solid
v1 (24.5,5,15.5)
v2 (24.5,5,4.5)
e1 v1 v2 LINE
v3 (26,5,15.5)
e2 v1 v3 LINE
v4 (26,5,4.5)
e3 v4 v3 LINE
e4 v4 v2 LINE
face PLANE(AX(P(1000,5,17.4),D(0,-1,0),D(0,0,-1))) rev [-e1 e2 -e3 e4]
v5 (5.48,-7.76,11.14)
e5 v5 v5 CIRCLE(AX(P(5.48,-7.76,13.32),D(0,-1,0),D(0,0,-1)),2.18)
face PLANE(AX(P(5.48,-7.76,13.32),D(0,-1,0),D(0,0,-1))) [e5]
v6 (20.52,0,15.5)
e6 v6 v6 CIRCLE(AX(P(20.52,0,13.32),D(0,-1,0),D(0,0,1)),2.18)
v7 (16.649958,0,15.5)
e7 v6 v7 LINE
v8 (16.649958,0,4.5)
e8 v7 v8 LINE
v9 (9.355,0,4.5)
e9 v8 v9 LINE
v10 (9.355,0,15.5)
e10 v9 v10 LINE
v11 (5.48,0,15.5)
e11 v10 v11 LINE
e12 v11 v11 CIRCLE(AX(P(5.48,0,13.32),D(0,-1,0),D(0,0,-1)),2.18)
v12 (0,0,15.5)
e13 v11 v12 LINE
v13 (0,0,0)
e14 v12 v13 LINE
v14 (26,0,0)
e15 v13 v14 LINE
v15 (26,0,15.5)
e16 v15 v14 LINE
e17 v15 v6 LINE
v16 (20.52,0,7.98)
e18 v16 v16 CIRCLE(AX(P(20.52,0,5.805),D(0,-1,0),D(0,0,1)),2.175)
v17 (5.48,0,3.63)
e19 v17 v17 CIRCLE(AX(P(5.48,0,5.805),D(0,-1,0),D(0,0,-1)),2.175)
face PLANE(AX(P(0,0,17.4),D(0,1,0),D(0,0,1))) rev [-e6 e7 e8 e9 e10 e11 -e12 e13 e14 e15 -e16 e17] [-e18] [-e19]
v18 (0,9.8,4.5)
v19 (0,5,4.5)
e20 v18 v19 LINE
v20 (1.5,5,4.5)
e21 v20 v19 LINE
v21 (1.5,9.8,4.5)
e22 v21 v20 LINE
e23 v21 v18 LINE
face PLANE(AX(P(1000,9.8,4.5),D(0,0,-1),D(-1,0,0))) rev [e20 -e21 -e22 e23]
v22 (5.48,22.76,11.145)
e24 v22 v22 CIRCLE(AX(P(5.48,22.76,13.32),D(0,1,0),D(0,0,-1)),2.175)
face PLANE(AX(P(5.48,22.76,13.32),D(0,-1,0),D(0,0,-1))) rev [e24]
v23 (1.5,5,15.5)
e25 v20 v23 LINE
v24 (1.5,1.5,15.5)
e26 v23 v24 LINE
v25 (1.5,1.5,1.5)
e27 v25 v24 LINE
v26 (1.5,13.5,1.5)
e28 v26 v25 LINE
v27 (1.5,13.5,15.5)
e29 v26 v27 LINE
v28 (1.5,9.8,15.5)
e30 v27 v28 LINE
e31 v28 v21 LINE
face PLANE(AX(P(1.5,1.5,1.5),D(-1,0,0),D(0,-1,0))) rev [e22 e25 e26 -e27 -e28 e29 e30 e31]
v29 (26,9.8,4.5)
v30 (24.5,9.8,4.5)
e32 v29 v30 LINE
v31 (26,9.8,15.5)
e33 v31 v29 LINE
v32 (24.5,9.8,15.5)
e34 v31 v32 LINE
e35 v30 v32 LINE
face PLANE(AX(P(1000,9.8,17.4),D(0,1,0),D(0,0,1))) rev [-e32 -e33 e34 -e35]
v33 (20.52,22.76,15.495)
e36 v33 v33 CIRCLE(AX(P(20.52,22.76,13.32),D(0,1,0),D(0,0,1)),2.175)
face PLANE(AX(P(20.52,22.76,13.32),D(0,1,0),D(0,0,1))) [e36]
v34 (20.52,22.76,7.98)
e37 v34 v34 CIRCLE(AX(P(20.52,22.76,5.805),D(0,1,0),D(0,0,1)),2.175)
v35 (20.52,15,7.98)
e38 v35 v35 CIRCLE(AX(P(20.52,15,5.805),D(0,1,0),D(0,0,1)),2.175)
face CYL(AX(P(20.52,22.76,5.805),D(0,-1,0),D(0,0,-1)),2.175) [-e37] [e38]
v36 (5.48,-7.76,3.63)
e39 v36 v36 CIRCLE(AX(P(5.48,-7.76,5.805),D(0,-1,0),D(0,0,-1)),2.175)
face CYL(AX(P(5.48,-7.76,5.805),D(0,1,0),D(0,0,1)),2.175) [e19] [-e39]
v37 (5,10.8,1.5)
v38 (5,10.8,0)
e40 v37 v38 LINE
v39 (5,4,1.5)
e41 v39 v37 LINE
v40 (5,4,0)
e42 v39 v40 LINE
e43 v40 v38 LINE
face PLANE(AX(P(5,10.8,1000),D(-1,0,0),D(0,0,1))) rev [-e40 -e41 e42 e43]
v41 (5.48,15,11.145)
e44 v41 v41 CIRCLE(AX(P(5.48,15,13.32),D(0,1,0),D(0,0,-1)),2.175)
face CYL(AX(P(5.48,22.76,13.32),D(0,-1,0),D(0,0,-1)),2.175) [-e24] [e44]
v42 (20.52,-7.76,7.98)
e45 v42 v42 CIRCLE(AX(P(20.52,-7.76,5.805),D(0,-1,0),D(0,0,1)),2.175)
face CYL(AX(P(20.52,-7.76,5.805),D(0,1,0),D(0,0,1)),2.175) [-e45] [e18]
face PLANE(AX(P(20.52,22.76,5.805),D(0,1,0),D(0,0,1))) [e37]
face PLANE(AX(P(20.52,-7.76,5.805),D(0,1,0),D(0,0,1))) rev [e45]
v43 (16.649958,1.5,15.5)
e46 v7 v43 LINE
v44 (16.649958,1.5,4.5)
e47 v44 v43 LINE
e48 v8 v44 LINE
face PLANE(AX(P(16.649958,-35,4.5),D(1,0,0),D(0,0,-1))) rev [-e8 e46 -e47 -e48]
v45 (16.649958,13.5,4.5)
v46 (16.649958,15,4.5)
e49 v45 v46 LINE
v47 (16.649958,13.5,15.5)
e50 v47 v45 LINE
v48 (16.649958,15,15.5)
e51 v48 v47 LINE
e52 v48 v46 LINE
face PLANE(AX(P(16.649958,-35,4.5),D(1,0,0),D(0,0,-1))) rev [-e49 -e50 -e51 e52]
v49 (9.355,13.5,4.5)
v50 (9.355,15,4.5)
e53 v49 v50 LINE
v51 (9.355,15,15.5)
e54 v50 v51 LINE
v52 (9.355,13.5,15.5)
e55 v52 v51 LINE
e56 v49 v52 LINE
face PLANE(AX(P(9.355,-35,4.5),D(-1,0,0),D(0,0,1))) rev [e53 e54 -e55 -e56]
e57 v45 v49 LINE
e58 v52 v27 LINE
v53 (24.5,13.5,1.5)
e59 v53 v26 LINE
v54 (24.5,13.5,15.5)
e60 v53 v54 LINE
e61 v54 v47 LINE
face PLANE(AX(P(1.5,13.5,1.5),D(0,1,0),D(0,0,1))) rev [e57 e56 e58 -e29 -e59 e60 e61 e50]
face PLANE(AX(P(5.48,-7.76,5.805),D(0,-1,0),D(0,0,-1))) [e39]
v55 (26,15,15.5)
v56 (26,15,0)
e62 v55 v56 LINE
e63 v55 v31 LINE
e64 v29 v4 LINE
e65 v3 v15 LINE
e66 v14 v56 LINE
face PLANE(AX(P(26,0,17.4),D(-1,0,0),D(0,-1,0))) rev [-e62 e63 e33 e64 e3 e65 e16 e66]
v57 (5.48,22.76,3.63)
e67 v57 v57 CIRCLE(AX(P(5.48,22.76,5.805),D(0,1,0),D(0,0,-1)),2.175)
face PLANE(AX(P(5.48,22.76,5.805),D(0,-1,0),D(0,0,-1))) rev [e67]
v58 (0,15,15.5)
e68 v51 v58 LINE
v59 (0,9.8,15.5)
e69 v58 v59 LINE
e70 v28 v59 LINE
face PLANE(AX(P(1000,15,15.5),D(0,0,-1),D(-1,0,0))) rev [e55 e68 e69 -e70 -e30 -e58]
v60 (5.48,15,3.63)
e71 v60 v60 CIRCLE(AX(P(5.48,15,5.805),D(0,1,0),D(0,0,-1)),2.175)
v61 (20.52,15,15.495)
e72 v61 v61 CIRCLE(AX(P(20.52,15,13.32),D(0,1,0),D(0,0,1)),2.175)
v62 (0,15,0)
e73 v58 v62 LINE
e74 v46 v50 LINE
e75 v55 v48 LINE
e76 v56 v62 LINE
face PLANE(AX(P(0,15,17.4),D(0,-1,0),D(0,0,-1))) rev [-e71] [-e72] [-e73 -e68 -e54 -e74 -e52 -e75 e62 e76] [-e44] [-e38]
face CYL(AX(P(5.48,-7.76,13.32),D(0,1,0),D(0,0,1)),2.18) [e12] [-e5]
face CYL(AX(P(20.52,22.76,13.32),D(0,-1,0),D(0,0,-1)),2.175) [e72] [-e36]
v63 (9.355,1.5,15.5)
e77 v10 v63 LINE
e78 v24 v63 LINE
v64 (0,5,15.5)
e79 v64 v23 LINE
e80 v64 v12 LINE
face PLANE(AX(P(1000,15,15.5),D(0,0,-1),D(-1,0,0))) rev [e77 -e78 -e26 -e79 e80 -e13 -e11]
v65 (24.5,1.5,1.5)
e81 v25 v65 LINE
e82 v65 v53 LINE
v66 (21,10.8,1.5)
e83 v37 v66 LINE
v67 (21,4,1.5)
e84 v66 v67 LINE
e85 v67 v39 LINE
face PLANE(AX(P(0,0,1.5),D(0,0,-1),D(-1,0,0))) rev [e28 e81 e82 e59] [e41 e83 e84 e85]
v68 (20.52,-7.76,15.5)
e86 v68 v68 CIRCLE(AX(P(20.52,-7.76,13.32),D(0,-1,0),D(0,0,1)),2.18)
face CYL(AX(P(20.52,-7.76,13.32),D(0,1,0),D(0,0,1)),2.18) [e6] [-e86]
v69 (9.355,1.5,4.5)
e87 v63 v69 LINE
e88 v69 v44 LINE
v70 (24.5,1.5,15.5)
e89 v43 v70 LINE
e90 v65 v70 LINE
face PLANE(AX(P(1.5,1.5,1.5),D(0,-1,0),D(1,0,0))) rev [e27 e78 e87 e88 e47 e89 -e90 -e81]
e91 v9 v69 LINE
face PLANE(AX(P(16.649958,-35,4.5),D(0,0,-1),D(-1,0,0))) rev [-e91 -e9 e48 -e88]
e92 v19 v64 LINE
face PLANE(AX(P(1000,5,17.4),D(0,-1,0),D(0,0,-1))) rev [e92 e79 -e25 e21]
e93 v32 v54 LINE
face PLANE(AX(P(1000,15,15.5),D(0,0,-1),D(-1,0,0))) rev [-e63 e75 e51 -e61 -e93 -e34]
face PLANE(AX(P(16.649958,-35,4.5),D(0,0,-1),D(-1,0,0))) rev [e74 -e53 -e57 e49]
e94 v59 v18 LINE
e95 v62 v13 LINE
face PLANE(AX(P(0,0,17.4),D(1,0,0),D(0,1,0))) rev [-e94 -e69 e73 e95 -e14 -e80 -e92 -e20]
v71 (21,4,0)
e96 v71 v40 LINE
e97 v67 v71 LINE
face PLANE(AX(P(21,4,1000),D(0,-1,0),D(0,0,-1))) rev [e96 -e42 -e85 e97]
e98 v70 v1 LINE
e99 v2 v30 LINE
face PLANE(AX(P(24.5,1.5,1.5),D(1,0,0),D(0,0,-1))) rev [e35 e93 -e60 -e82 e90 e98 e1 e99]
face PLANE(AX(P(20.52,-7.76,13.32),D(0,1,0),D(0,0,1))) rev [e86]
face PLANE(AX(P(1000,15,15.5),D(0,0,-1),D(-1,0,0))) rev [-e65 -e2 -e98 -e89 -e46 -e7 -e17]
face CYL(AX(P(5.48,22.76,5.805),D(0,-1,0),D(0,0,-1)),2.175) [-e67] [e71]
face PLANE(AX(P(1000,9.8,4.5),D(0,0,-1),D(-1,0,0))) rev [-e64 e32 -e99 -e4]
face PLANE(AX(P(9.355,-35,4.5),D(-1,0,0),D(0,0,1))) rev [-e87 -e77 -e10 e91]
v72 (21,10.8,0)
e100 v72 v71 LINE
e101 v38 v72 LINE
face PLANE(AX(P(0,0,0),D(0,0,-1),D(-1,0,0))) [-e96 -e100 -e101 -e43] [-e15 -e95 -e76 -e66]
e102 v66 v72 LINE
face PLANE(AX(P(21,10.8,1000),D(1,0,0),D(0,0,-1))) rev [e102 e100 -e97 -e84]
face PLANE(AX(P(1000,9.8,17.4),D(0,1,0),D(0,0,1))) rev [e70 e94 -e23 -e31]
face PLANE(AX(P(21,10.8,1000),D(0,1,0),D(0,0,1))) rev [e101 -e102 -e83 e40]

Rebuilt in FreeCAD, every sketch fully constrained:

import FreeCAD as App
import Part
import Sketcher

V = App.Vector


def add_polygon(sketch, points):
    """Adds a closed chain of lines whose ends are joined by coincident constraints."""
    first, n = sketch.GeometryCount, len(points)
    for a, b in zip(points, points[1:] + points[:1]):
        sketch.addGeometry(Part.LineSegment(App.Vector(*a, 0), App.Vector(*b, 0)), False)
    for i in range(n):
        sketch.addConstraint(Sketcher.Constraint("Coincident", first + i, 2, first + (i + 1) % n, 1))

doc = App.newDocument("Part")
body = doc.addObject("PartDesign::Body", "Body")

# Sketch on XY plane
sketch1 = body.newObject("Sketcher::SketchObject", "Sketch")
sketch1.AttachmentSupport = (doc.getObject("XY_Plane"), [""])
sketch1.MapMode = "FlatFace"
add_polygon(sketch1, [(0, 15), (0, 0), (26, 0), (26, 15)])  # lines 0-3
sketch1.addConstraint([
    Sketcher.Constraint("Vertical", 0),
    Sketcher.Constraint("Horizontal", 1),
    Sketcher.Constraint("Vertical", 2),
    Sketcher.Constraint("Horizontal", 3),
    Sketcher.Constraint("Coincident", 0, 2, -1, 1),
    Sketcher.Constraint("DistanceX", 1, 1, 1, 2, 26.0),
    Sketcher.Constraint("DistanceY", 0, 2, 0, 1, 15.0),
])
pad1 = body.newObject("PartDesign::Pad", "Pad")
pad1.Profile = sketch1
pad1.Length = 17.4

# Sketch on XY plane
sketch2 = body.newObject("Sketcher::SketchObject", "Sketch001")
sketch2.AttachmentSupport = (doc.getObject("XY_Plane"), [""])
sketch2.MapMode = "FlatFace"
sketch2.AttachmentOffset = App.Placement(V(0, 0, 17.4), App.Rotation())
add_polygon(sketch2, [(1.5, 13.5), (1.5, 1.5), (24.5, 1.5), (24.5, 13.5)])  # lines 0-3
sketch2.addConstraint([
    Sketcher.Constraint("Vertical", 0),
    Sketcher.Constraint("Horizontal", 1),
    Sketcher.Constraint("Vertical", 2),
    Sketcher.Constraint("Horizontal", 3),
    Sketcher.Constraint("DistanceX", 1, 1, 1, 2, 23.0),
    Sketcher.Constraint("DistanceY", 0, 2, 0, 1, 12.0),
    Sketcher.Constraint("DistanceX", -1, 1, 0, 2, 1.5),
    Sketcher.Constraint("DistanceY", -1, 1, 0, 2, 1.5),
])
pocket1 = body.newObject("PartDesign::Pocket", "Pocket")
pocket1.Profile = sketch2
pocket1.Length = 15.9

# Sketch on XZ plane
sketch3 = body.newObject("Sketcher::SketchObject", "Sketch002")
sketch3.AttachmentSupport = (doc.getObject("XZ_Plane"), [""])
sketch3.MapMode = "FlatFace"
add_polygon(sketch3, [(7, 17.4), (7, 4.5), (19, 4.5), (19, 17.4)])  # lines 0-3
sketch3.addConstraint([
    Sketcher.Constraint("Vertical", 0),
    Sketcher.Constraint("Horizontal", 1),
    Sketcher.Constraint("Vertical", 2),
    Sketcher.Constraint("Horizontal", 3),
    Sketcher.Constraint("DistanceX", 1, 1, 1, 2, 12.0),
    Sketcher.Constraint("DistanceY", 0, 2, 0, 1, 12.9),
    Sketcher.Constraint("DistanceX", -1, 1, 0, 2, 7.0),
    Sketcher.Constraint("DistanceY", -1, 1, 0, 2, 4.5),
])
pocket2 = body.newObject("PartDesign::Pocket", "Pocket001")
pocket2.Profile = sketch3
pocket2.Length = 15.9

# Sketch on YZ plane
sketch4 = body.newObject("Sketcher::SketchObject", "Sketch003")
sketch4.AttachmentSupport = (doc.getObject("YZ_Plane"), [""])
sketch4.MapMode = "FlatFace"
add_polygon(sketch4, [(9.8, 4.5), (5, 4.5), (5, 17.4), (9.8, 17.4)])  # lines 0-3
sketch4.addConstraint([
    Sketcher.Constraint("Horizontal", 0),
    Sketcher.Constraint("Vertical", 1),
    Sketcher.Constraint("Horizontal", 2),
    Sketcher.Constraint("Vertical", 3),
    Sketcher.Constraint("DistanceX", 0, 2, 0, 1, 4.8),
    Sketcher.Constraint("DistanceY", 1, 1, 1, 2, 12.9),
    Sketcher.Constraint("DistanceX", -1, 1, 0, 2, 5.0),
    Sketcher.Constraint("DistanceY", -1, 1, 0, 2, 4.5),
])
pocket3 = body.newObject("PartDesign::Pocket", "Pocket002")
pocket3.Profile = sketch4
pocket3.Length = 1000
pocket3.Reversed = True

# Sketch on XY plane
sketch5 = body.newObject("Sketcher::SketchObject", "Sketch004")
sketch5.AttachmentSupport = (doc.getObject("XY_Plane"), [""])
sketch5.MapMode = "FlatFace"
add_polygon(sketch5, [(21, 10.8), (21, 4), (5, 4), (5, 10.8)])  # lines 0-3
sketch5.addConstraint([
    Sketcher.Constraint("Vertical", 0),
    Sketcher.Constraint("Horizontal", 1),
    Sketcher.Constraint("Vertical", 2),
    Sketcher.Constraint("Horizontal", 3),
    Sketcher.Constraint("DistanceX", 1, 2, 1, 1, 16.0),
    Sketcher.Constraint("DistanceY", 0, 2, 0, 1, 6.8),
    Sketcher.Constraint("DistanceX", -1, 1, 0, 2, 21.0),
    Sketcher.Constraint("DistanceY", -1, 1, 0, 2, 4.0),
])
pocket4 = body.newObject("PartDesign::Pocket", "Pocket003")
pocket4.Profile = sketch5
pocket4.Length = 1000
pocket4.Reversed = True

# Sketch on YZ plane
sketch6 = body.newObject("Sketcher::SketchObject", "Sketch005")
sketch6.AttachmentSupport = (doc.getObject("YZ_Plane"), [""])
sketch6.MapMode = "FlatFace"
add_polygon(sketch6, [(15, 15.5), (0, 15.5), (0, 17.4), (15, 17.4)])  # lines 0-3
sketch6.addConstraint([
    Sketcher.Constraint("Horizontal", 0),
    Sketcher.Constraint("Vertical", 1),
    Sketcher.Constraint("Horizontal", 2),
    Sketcher.Constraint("Vertical", 3),
    Sketcher.Constraint("PointOnObject", 0, 2, -2),
    Sketcher.Constraint("DistanceX", 0, 2, 0, 1, 15.0),
    Sketcher.Constraint("DistanceY", 1, 1, 1, 2, 1.9),
    Sketcher.Constraint("DistanceY", -1, 1, 0, 2, 15.5),
])
pocket5 = body.newObject("PartDesign::Pocket", "Pocket004")
pocket5.Profile = sketch6
pocket5.Length = 1000
pocket5.Reversed = True

# Sketch on XZ plane
sketch7 = body.newObject("Sketcher::SketchObject", "Sketch006")
sketch7.AttachmentSupport = (doc.getObject("XZ_Plane"), [""])
sketch7.MapMode = "FlatFace"
sketch7.AttachmentOffset = App.Placement(V(0, 0, -15), App.Rotation())
sketch7.addGeometry([
    Part.Circle(V(20.52, 5.805, 0), V(0, 0, 1), 2.175),
    Part.Circle(V(20.52, 13.32, 0), V(0, 0, 1), 2.175),
    Part.Circle(V(5.48, 5.805, 0), V(0, 0, 1), 2.175),
    Part.Circle(V(5.48, 13.32, 0), V(0, 0, 1), 2.175),
], False)
sketch7.addConstraint([
    Sketcher.Constraint("Equal", 0, 1),
    Sketcher.Constraint("Equal", 1, 2),
    Sketcher.Constraint("Equal", 2, 3),
    Sketcher.Constraint("Horizontal", 0, 3, 2, 3),
    Sketcher.Constraint("Horizontal", 1, 3, 3, 3),
    Sketcher.Constraint("Vertical", 0, 3, 1, 3),
    Sketcher.Constraint("Vertical", 2, 3, 3, 3),
    Sketcher.Constraint("Diameter", 0, 4.35),
    Sketcher.Constraint("DistanceX", -1, 1, 0, 3, 20.52),
    Sketcher.Constraint("DistanceY", -1, 1, 1, 3, 13.32),
    Sketcher.Constraint("DistanceX", -1, 1, 2, 3, 5.48),
    Sketcher.Constraint("DistanceY", -1, 1, 0, 3, 5.805),
])
pad2 = body.newObject("PartDesign::Pad", "Pad001")
pad2.Profile = sketch7
pad2.Length = 7.76
pad2.Reversed = True

# Sketch on XZ plane
sketch8 = body.newObject("Sketcher::SketchObject", "Sketch007")
sketch8.AttachmentSupport = (doc.getObject("XZ_Plane"), [""])
sketch8.MapMode = "FlatFace"
sketch8.AttachmentOffset = App.Placement(V(0, 0, 7.76), App.Rotation())
sketch8.addGeometry([
    Part.Circle(V(5.48, 5.805, 0), V(0, 0, 1), 2.175),
    Part.Circle(V(5.48, 13.32, 0), V(0, 0, 1), 2.18),
    Part.Circle(V(20.52, 5.805, 0), V(0, 0, 1), 2.175),
    Part.Circle(V(20.52, 13.32, 0), V(0, 0, 1), 2.18),
], False)
sketch8.addConstraint([
    Sketcher.Constraint("Equal", 0, 2),
    Sketcher.Constraint("Equal", 1, 3),
    Sketcher.Constraint("Horizontal", 0, 3, 2, 3),
    Sketcher.Constraint("Horizontal", 1, 3, 3, 3),
    Sketcher.Constraint("Vertical", 0, 3, 1, 3),
    Sketcher.Constraint("Vertical", 2, 3, 3, 3),
    Sketcher.Constraint("Diameter", 0, 4.35),
    Sketcher.Constraint("Diameter", 1, 4.36),
    Sketcher.Constraint("DistanceX", -1, 1, 0, 3, 5.48),
    Sketcher.Constraint("DistanceY", -1, 1, 1, 3, 13.32),
    Sketcher.Constraint("DistanceX", -1, 1, 2, 3, 20.52),
    Sketcher.Constraint("DistanceY", -1, 1, 0, 3, 5.805),
])
pad3 = body.newObject("PartDesign::Pad", "Pad002")
pad3.Profile = sketch8
pad3.Length = 7.76
pad3.Reversed = True

# Sketch on XZ plane
sketch9 = body.newObject("Sketcher::SketchObject", "Sketch008")
sketch9.AttachmentSupport = (doc.getObject("XZ_Plane"), [""])
sketch9.MapMode = "FlatFace"
sketch9.AttachmentOffset = App.Placement(V(0, 0, -15), App.Rotation())
add_polygon(sketch9, [(7, 4.5), (7, 15.5), (19, 15.5), (19, 4.5)])  # lines 0-3
sketch9.addConstraint([
    Sketcher.Constraint("Vertical", 0),
    Sketcher.Constraint("Horizontal", 1),
    Sketcher.Constraint("Vertical", 2),
    Sketcher.Constraint("Horizontal", 3),
    Sketcher.Constraint("DistanceX", 1, 1, 1, 2, 12.0),
    Sketcher.Constraint("DistanceY", 0, 1, 0, 2, 11.0),
    Sketcher.Constraint("DistanceX", -1, 1, 0, 2, 7.0),
    Sketcher.Constraint("DistanceY", -1, 1, 0, 2, 15.5),
])
pad4 = body.newObject("PartDesign::Pad", "Pad003")
pad4.Profile = sketch9
pad4.Length = 1.5

# Sketch on XZ plane
sketch10 = body.newObject("Sketcher::SketchObject", "Sketch009")
sketch10.AttachmentSupport = (doc.getObject("XZ_Plane"), [""])
sketch10.MapMode = "FlatFace"
add_polygon(sketch10, [(19, 4.5), (19, 15.5), (7, 15.5), (7, 4.5)])  # lines 0-3
sketch10.addConstraint([
    Sketcher.Constraint("Vertical", 0),
    Sketcher.Constraint("Horizontal", 1),
    Sketcher.Constraint("Vertical", 2),
    Sketcher.Constraint("Horizontal", 3),
    Sketcher.Constraint("DistanceX", 1, 2, 1, 1, 12.0),
    Sketcher.Constraint("DistanceY", 0, 1, 0, 2, 11.0),
    Sketcher.Constraint("DistanceX", -1, 1, 0, 2, 19.0),
    Sketcher.Constraint("DistanceY", -1, 1, 0, 2, 15.5),
])
pad5 = body.newObject("PartDesign::Pad", "Pad004")
pad5.Profile = sketch10
pad5.Length = 1.5
pad5.Reversed = True

# Sketch on XZ plane
sketch11 = body.newObject("Sketcher::SketchObject", "Sketch010")
sketch11.AttachmentSupport = (doc.getObject("XZ_Plane"), [""])
sketch11.MapMode = "FlatFace"
sketch11.AttachmentOffset = App.Placement(V(0, 0, -15), App.Rotation())
add_polygon(sketch11, [(9.355, 4.5), (9.355, 15.5), (16.649958, 15.5), (16.649958, 4.5)])  # lines 0-3
sketch11.addConstraint([
    Sketcher.Constraint("Vertical", 0),
    Sketcher.Constraint("Horizontal", 1),
    Sketcher.Constraint("Vertical", 2),
    Sketcher.Constraint("Horizontal", 3),
    Sketcher.Constraint("DistanceY", 0, 1, 0, 2, 11.0),
    Sketcher.Constraint("DistanceY", -1, 1, 0, 2, 15.5),
    Sketcher.Constraint("DistanceX", -1, 1, 0, 2, 9.355),
    Sketcher.Constraint("DistanceX", 1, 1, 1, 2, 7.294958),
])
pocket6 = body.newObject("PartDesign::Pocket", "Pocket005")
pocket6.Profile = sketch11
pocket6.Length = 50
pocket6.Reversed = True

doc.recompute()
